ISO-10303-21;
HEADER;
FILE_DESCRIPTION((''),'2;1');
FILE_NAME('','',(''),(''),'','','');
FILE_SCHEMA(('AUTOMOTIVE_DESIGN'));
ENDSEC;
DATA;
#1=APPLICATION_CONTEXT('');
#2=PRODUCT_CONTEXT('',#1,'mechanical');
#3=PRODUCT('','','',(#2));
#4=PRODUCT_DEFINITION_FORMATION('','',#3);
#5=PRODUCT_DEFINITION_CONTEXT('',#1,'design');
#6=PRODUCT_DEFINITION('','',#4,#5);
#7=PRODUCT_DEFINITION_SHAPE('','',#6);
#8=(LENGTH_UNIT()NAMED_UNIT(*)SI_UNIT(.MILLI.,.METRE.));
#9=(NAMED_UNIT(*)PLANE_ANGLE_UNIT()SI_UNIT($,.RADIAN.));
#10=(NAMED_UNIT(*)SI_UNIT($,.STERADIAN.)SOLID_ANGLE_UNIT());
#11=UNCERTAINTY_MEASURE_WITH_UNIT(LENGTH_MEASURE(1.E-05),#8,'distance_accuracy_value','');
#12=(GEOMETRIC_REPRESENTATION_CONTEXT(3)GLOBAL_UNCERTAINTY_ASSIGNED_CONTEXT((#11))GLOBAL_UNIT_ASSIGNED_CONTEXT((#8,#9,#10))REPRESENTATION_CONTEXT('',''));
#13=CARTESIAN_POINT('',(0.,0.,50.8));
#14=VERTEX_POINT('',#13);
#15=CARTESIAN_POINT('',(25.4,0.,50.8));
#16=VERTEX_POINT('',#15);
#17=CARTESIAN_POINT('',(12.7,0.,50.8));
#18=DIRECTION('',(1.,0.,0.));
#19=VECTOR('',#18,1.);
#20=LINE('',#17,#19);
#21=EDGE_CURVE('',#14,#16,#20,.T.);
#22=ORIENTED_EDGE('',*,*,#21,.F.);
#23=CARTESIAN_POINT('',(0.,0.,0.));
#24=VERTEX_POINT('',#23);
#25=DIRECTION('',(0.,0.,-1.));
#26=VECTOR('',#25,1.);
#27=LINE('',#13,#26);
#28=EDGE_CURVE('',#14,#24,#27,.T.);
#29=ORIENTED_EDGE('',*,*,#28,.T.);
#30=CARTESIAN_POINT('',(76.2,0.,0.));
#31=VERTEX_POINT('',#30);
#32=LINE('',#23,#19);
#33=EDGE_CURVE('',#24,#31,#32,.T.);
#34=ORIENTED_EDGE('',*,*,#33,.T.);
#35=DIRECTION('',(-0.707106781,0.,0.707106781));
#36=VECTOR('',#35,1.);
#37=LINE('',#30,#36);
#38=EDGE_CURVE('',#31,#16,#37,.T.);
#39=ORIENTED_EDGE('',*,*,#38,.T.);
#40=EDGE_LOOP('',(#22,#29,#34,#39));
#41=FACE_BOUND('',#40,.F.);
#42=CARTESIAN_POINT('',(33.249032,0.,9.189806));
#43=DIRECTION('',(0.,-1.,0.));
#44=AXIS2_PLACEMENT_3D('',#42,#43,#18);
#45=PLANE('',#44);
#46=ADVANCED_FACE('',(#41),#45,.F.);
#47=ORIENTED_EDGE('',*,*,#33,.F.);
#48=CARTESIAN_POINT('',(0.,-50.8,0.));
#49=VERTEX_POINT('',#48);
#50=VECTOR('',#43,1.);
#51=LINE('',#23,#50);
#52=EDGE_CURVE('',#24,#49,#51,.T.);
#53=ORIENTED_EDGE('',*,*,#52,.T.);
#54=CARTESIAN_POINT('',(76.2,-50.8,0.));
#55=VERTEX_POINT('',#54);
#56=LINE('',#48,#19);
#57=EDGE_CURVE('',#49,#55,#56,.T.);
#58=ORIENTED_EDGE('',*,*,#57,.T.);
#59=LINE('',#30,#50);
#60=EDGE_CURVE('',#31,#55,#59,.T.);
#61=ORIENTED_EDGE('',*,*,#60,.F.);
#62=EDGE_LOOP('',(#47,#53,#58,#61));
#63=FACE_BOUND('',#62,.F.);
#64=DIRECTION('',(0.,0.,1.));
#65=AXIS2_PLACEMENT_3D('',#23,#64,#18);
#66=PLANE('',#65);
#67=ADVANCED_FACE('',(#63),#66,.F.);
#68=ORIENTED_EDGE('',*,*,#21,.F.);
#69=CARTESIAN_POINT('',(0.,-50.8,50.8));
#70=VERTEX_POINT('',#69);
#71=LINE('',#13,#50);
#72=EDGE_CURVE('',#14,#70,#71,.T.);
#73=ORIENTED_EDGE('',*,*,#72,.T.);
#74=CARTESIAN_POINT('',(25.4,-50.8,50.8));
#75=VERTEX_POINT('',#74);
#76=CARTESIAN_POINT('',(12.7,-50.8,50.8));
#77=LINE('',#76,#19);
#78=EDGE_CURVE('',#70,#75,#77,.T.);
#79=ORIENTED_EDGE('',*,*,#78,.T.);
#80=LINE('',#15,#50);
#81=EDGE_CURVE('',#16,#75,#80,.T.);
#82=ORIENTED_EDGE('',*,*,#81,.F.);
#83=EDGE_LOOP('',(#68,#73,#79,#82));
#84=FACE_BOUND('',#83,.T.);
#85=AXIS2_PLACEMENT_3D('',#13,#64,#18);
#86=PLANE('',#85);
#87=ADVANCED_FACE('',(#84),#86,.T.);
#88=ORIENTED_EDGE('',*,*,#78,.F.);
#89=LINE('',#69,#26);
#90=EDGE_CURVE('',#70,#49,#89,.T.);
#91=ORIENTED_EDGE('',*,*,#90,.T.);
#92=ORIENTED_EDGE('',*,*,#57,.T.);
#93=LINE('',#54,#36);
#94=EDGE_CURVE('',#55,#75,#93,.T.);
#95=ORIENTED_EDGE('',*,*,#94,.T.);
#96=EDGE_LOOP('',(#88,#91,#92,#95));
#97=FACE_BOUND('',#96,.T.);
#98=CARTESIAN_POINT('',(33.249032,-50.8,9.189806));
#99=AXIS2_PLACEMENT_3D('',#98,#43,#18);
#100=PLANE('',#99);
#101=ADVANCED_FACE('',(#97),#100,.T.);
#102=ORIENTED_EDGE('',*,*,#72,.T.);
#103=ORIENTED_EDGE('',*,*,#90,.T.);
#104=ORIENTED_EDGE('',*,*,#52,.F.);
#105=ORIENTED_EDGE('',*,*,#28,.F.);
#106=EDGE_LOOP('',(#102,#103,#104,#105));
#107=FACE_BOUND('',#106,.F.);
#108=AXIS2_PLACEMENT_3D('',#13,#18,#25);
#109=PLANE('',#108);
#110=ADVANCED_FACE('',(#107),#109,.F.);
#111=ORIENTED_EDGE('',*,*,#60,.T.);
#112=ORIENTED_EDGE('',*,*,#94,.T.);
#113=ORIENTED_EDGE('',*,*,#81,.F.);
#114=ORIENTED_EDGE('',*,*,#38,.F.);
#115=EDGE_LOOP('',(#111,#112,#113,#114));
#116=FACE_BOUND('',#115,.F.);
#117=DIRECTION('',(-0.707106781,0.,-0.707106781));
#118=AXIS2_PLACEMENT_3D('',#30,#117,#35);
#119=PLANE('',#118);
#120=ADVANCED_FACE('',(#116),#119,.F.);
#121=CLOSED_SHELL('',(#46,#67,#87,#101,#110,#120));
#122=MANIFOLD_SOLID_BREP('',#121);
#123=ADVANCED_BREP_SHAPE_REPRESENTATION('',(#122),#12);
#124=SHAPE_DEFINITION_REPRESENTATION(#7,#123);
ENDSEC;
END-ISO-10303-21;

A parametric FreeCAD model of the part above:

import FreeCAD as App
import Part
import Sketcher
Q = App.Units.Quantity

doc = App.newDocument("Part")
params = doc.addObject("Spreadsheet::Sheet", "Params")
for row, (alias, value) in enumerate([
    ("sketch1_width", "3 in"),
    ("sketch1_width2", "1 in"),
    ("sketch1_height", "2 in"),
    ("pad1_length", "2 in"),
], start=1):
    params.set(f"A{row}", alias)
    params.set(f"B{row}", "=" + value)
    params.setAlias(f"B{row}", alias)

body = doc.addObject("PartDesign::Body", "Body")

# Sketch on XZ plane
sketch1 = doc.addObject("Sketcher::SketchObject", "Sketch")
body.addObject(sketch1)
sketch1.AttachmentSupport = (doc.XZ_Plane, [""])
sketch1.MapMode = "FlatFace"
sketch1.addGeometry(Part.LineSegment(App.Vector(0, 0, 0), App.Vector(76, 0, 0)), False)
sketch1.addGeometry(Part.LineSegment(App.Vector(76, 0, 0), App.Vector(25, 51, 0)), False)
sketch1.addGeometry(Part.LineSegment(App.Vector(25, 51, 0), App.Vector(0, 51, 0)), False)
sketch1.addGeometry(Part.LineSegment(App.Vector(0, 51, 0), App.Vector(0, 0, 0)), False)
sketch1.addConstraint(Sketcher.Constraint("Coincident", 0, 2, 1, 1))
sketch1.addConstraint(Sketcher.Constraint("Coincident", 1, 2, 2, 1))
sketch1.addConstraint(Sketcher.Constraint("Coincident", 2, 2, 3, 1))
sketch1.addConstraint(Sketcher.Constraint("Coincident", 3, 2, 0, 1))
sketch1.addConstraint(Sketcher.Constraint("Horizontal", 0))
sketch1.addConstraint(Sketcher.Constraint("Horizontal", 2))
sketch1.addConstraint(Sketcher.Constraint("Vertical", 3))
sketch1.addConstraint(Sketcher.Constraint("Coincident", 3, 2, -1, 1))
sketch1.addConstraint(Sketcher.Constraint("DistanceX", 0, 1, 0, 2, Q("3 in")))
sketch1.addConstraint(Sketcher.Constraint("DistanceX", 2, 2, 2, 1, Q("1 in")))
sketch1.addConstraint(Sketcher.Constraint("DistanceY", 3, 2, 3, 1, Q("2 in")))
sketch1.setExpression("Constraints[8]", "Params.sketch1_width")
sketch1.setExpression("Constraints[9]", "Params.sketch1_width2")
sketch1.setExpression("Constraints[10]", "Params.sketch1_height")
pad1 = doc.addObject("PartDesign::Pad", "Pad")
body.addObject(pad1)
pad1.Profile = sketch1
pad1.setExpression("Length", "Params.pad1_length")

doc.recompute()
